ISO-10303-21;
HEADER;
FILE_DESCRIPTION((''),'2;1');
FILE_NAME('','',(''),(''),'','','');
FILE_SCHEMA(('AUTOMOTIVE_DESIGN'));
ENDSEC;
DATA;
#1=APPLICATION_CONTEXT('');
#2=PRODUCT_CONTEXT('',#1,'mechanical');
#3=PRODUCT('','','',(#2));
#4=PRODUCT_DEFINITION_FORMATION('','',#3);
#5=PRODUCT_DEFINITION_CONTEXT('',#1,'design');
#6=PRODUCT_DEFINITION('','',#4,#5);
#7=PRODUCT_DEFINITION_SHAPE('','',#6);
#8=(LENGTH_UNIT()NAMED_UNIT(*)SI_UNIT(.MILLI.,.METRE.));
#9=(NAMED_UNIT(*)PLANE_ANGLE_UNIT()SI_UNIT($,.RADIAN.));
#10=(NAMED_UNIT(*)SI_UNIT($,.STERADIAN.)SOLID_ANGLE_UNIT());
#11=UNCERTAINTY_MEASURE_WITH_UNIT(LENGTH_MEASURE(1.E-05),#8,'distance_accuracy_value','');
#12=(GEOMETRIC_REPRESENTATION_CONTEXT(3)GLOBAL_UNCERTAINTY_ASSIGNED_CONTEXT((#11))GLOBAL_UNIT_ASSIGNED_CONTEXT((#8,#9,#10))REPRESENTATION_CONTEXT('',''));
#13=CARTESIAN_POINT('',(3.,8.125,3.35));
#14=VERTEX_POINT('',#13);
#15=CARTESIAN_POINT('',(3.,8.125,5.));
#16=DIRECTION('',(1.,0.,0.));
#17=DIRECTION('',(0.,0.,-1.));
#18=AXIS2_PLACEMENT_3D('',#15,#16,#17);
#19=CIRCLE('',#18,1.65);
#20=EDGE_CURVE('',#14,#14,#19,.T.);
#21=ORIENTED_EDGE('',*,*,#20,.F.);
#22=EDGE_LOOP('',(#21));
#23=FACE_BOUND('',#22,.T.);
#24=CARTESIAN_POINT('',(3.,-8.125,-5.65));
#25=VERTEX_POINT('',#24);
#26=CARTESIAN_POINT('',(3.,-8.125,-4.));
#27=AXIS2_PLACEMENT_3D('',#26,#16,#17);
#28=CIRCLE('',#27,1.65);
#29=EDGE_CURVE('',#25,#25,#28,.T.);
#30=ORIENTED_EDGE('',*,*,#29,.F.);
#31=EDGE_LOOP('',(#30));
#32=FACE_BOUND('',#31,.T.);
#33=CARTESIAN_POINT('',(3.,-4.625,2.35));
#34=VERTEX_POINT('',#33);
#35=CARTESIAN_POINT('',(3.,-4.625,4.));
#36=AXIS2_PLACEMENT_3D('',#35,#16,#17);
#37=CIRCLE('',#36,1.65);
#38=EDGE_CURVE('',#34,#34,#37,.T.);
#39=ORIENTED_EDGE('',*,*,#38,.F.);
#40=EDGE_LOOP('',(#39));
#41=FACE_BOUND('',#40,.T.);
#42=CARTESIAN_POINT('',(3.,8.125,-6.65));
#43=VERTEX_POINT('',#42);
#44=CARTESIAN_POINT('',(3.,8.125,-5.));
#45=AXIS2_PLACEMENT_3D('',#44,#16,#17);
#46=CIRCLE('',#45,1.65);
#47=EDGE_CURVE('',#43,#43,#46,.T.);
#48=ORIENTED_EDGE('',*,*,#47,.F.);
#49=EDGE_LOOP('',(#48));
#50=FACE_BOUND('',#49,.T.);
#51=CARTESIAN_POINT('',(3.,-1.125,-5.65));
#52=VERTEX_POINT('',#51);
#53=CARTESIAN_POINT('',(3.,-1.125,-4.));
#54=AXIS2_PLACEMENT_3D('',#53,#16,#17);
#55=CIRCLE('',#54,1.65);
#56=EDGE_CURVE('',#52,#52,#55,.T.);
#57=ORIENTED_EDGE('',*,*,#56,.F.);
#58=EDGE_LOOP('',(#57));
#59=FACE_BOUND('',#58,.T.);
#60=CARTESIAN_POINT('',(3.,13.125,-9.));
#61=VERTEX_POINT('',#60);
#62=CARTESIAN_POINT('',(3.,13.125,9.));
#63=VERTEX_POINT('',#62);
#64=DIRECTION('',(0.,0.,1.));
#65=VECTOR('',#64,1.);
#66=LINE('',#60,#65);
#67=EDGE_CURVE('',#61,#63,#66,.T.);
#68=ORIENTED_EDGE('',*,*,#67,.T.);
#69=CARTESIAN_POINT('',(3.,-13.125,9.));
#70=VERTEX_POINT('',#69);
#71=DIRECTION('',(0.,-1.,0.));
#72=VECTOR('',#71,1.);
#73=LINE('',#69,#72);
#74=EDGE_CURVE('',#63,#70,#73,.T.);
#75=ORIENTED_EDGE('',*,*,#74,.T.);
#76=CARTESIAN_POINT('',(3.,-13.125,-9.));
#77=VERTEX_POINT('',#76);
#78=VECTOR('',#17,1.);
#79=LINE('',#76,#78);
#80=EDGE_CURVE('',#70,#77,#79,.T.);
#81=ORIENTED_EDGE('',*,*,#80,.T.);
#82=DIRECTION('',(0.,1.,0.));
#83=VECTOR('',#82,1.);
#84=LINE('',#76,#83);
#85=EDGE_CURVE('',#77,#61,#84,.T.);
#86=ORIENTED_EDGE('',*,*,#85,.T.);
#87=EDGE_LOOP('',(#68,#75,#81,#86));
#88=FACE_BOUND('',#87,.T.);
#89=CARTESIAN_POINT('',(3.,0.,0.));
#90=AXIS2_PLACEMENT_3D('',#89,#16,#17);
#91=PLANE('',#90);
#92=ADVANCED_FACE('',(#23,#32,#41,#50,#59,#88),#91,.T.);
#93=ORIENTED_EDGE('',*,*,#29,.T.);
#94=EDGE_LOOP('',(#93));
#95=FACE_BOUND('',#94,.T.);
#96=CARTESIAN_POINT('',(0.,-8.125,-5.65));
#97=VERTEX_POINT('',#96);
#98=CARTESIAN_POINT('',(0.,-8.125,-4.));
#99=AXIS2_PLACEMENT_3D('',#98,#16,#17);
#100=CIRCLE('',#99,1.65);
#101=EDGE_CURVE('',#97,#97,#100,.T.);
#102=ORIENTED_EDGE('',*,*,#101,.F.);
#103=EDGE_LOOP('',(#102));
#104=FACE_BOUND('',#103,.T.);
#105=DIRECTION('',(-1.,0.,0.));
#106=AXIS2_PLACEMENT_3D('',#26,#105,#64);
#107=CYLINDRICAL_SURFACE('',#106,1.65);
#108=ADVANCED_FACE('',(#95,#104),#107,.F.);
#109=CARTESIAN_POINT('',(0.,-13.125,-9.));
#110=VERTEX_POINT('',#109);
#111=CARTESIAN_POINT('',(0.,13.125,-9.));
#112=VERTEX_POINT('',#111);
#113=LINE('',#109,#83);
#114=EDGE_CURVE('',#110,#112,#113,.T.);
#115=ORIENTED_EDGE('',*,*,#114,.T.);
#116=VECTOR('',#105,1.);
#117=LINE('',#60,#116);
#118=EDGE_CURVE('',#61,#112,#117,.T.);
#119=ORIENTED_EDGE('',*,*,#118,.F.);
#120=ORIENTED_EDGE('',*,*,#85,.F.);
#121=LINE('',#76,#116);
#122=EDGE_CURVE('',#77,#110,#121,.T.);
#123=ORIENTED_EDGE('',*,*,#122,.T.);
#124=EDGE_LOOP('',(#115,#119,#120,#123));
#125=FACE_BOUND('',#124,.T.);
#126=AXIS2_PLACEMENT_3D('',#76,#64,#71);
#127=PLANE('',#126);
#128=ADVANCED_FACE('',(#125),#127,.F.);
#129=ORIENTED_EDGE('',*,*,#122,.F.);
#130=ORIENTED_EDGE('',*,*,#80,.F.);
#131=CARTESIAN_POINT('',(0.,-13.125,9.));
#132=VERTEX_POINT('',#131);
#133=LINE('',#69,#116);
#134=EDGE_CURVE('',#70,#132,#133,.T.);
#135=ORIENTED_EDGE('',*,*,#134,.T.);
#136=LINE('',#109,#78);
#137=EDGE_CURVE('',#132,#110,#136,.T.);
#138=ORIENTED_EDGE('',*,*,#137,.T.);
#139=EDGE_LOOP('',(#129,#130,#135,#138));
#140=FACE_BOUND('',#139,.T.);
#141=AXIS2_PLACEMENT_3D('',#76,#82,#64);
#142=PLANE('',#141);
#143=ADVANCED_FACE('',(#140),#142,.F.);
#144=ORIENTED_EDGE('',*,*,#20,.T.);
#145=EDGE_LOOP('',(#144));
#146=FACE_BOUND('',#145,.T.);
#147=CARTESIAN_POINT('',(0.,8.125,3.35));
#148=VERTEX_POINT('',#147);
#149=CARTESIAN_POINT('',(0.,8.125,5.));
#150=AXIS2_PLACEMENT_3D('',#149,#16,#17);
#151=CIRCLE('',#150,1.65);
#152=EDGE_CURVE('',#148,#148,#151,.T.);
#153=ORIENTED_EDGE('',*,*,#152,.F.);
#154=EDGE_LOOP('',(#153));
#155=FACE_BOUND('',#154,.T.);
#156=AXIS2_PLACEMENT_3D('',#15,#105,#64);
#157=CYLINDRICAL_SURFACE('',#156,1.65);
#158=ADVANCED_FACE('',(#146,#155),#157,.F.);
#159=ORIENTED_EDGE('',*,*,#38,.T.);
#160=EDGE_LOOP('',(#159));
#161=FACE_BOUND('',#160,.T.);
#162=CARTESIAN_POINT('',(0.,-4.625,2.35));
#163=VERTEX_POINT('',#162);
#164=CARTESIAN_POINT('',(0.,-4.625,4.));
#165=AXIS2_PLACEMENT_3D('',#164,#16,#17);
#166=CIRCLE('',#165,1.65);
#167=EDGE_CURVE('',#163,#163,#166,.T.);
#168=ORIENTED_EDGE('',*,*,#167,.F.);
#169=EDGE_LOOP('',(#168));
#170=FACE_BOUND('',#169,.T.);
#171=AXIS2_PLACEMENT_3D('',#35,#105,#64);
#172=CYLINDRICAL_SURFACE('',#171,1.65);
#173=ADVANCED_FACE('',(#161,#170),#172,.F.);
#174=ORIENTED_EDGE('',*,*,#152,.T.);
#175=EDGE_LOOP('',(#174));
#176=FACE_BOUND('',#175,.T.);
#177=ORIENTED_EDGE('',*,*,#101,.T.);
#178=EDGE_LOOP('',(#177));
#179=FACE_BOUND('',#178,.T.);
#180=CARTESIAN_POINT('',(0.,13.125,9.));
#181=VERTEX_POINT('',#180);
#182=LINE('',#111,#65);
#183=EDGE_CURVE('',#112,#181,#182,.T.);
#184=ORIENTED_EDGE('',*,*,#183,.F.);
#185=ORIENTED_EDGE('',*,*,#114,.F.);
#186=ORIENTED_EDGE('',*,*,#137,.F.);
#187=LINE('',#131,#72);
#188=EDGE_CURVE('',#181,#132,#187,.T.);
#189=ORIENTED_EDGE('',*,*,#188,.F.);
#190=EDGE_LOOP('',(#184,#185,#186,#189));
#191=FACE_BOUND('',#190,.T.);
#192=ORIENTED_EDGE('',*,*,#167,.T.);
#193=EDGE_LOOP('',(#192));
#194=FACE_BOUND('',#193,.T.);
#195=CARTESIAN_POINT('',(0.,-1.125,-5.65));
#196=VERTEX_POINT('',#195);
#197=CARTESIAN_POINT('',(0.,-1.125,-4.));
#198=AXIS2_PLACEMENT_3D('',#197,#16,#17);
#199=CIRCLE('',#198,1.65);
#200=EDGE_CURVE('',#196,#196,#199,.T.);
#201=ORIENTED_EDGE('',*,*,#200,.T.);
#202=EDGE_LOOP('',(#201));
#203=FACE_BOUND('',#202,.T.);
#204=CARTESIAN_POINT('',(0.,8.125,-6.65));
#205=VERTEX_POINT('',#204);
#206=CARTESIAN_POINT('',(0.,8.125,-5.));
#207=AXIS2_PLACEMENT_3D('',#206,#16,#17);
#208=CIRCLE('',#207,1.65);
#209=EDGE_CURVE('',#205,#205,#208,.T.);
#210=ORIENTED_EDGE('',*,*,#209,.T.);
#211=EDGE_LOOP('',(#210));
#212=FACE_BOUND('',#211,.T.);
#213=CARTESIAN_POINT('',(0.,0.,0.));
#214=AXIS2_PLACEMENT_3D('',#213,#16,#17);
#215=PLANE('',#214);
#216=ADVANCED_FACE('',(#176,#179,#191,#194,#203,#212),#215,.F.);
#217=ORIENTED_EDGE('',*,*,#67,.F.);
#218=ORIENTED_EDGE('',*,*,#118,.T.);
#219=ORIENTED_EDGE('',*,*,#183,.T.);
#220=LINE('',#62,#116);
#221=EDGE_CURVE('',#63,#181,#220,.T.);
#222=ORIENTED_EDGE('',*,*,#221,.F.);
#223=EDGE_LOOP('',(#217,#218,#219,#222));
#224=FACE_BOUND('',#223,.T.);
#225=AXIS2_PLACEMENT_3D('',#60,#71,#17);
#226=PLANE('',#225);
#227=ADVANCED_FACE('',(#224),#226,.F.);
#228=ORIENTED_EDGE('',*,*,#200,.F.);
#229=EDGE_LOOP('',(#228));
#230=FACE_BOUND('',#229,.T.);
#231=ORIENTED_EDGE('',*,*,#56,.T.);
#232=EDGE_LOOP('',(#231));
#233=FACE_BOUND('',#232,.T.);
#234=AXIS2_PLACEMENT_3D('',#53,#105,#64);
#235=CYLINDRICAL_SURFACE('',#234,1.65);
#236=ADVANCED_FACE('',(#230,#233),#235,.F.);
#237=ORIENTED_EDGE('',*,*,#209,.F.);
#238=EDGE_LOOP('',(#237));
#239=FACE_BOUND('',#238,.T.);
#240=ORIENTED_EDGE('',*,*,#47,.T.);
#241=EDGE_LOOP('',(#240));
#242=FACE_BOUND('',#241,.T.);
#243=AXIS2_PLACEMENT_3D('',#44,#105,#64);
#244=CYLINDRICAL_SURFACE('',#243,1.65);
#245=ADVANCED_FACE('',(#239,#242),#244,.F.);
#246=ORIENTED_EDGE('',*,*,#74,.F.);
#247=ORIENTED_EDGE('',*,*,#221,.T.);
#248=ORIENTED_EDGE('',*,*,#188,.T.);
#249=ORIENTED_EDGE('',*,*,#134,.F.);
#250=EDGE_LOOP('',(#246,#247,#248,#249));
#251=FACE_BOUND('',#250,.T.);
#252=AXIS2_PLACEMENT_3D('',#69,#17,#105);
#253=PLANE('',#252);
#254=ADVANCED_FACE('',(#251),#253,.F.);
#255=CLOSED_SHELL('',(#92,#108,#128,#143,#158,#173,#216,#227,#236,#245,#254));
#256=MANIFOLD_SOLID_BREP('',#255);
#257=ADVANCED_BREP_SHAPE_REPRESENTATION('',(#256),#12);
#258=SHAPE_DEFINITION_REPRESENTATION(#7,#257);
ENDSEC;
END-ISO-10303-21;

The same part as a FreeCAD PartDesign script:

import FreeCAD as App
import Part
import Sketcher
Q = App.Units.Quantity

doc = App.newDocument("Part")
body = doc.addObject("PartDesign::Body", "Body")

sketch1 = doc.addObject("Sketcher::SketchObject", "Sketch")
body.addObject(sketch1)
sketch1.AttachmentSupport = (doc.YZ_Plane, [""])
sketch1.MapMode = "FlatFace"
sketch1.addGeometry(Part.LineSegment(App.Vector(13.1, 9, 0), App.Vector(-13.1, 9, 0)), False)
sketch1.addGeometry(Part.LineSegment(App.Vector(-13.1, 9, 0), App.Vector(-13.1, -9, 0)), False)
sketch1.addGeometry(Part.LineSegment(App.Vector(-13.1, -9, 0), App.Vector(13.1, -9, 0)), False)
sketch1.addGeometry(Part.LineSegment(App.Vector(13.1, -9, 0), App.Vector(13.1, 9, 0)), False)
sketch1.addGeometry(Part.Circle(App.Vector(-4.6, 4, 0), App.Vector(0, 0, 1), 1.6), False)
sketch1.addGeometry(Part.Circle(App.Vector(-8.1, -4, 0), App.Vector(0, 0, 1), 1.6), False)
sketch1.addGeometry(Part.Circle(App.Vector(-1.1, -4, 0), App.Vector(0, 0, 1), 1.6), False)
sketch1.addGeometry(Part.Circle(App.Vector(8.1, 5, 0), App.Vector(0, 0, 1), 1.6), False)
sketch1.addGeometry(Part.Circle(App.Vector(8.1, -5, 0), App.Vector(0, 0, 1), 1.6), False)
sketch1.addConstraint(Sketcher.Constraint("Coincident", 0, 2, 1, 1))
sketch1.addConstraint(Sketcher.Constraint("Coincident", 1, 2, 2, 1))
sketch1.addConstraint(Sketcher.Constraint("Coincident", 2, 2, 3, 1))
sketch1.addConstraint(Sketcher.Constraint("Coincident", 3, 2, 0, 1))
sketch1.addConstraint(Sketcher.Constraint("Horizontal", 0))
sketch1.addConstraint(Sketcher.Constraint("Vertical", 1))
sketch1.addConstraint(Sketcher.Constraint("Horizontal", 2))
sketch1.addConstraint(Sketcher.Constraint("Vertical", 3))
sketch1.addConstraint(Sketcher.Constraint("Equal", 4, 5))
sketch1.addConstraint(Sketcher.Constraint("Equal", 5, 6))
sketch1.addConstraint(Sketcher.Constraint("Equal", 6, 7))
sketch1.addConstraint(Sketcher.Constraint("Equal", 7, 8))
sketch1.addConstraint(Sketcher.Constraint("Symmetric", 0, 2, 2, 2, -1, 1))
sketch1.addConstraint(Sketcher.Constraint("Symmetric", 7, 3, 8, 3, -1))
sketch1.addConstraint(Sketcher.Constraint("Horizontal", 5, 3, 6, 3))
sketch1.addConstraint(Sketcher.Constraint("Diameter", 4, Q("3.3 mm")))
sketch1.addConstraint(Sketcher.Constraint("DistanceY", 1, 2, 1, 1, Q("18 mm")))
sketch1.addConstraint(Sketcher.Constraint("DistanceY", -1, 1, 4, 3, Q("4 mm")))
sketch1.addConstraint(Sketcher.Constraint("DistanceY", 5, 3, -1, 1, Q("4 mm")))
sketch1.addConstraint(Sketcher.Constraint("DistanceY", -1, 1, 7, 3, Q("5 mm")))
sketch1.addConstraint(Sketcher.Constraint("DistanceX", 5, 3, 6, 3, Q("7 mm")))
sketch1.addConstraint(Sketcher.Constraint("DistanceX", 0, 2, 5, 3, Q("5 mm")))
sketch1.addConstraint(Sketcher.Constraint("DistanceX", 8, 3, 2, 2, Q("5 mm")))
sketch1.addConstraint(Sketcher.Constraint("DistanceX", 0, 2, 0, 1, Q("26.25 mm")))
sketch1.addConstraint(Sketcher.Constraint("DistanceX", 5, 3, 4, 3, Q("3.5 mm")))
pad1 = doc.addObject("PartDesign::Pad", "Pad")
body.addObject(pad1)
pad1.Profile = sketch1
pad1.Length = 3

doc.recompute()
